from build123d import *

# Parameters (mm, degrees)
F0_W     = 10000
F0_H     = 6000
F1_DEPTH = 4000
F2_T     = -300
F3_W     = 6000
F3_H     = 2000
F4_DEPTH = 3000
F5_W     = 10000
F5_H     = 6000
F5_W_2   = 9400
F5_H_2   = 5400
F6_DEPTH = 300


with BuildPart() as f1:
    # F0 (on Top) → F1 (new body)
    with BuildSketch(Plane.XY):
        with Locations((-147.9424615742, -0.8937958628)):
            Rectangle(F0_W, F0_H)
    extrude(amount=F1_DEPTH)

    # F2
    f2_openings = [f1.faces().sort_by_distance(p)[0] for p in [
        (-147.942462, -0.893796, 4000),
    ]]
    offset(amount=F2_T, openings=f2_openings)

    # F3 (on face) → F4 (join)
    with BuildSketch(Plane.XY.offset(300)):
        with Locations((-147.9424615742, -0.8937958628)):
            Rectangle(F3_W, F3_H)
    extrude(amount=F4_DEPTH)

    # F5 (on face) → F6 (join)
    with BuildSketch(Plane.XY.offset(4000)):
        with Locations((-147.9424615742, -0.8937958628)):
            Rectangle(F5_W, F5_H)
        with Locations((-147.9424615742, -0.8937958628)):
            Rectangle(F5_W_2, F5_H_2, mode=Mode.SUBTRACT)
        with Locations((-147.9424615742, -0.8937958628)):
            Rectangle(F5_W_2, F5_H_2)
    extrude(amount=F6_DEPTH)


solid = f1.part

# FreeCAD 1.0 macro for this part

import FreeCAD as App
import Part
import Sketcher
Q = App.Units.Quantity


def faces_at(feature, points):
    """Names of the faces that lie closest to the given points."""
    faces = feature.Shape.Faces
    near = lambda p: min(range(len(faces)), key=lambda i: faces[i].distToShape(Part.Vertex(*p))[0])
    return sorted({f"Face{near(p) + 1}" for p in points})

doc = App.newDocument("Part")
params = doc.addObject("Spreadsheet::Sheet", "Params")
for row, (alias, value) in enumerate([
    ("sketch1_width", "10000 mm"),
    ("sketch1_height", "6000 mm"),
    ("pad1_length", "4000 mm"),
    ("thickness_wall", "300 mm"),
    ("sketch2_width", "6000 mm"),
    ("sketch2_height", "2000 mm"),
    ("pad2_length", "3000 mm"),
    ("sketch3_width", "10000 mm"),
    ("sketch3_height", "6000 mm"),
    ("pad3_length", "300 mm"),
], start=1):
    params.set(f"A{row}", alias)
    params.set(f"B{row}", "=" + value)
    params.setAlias(f"B{row}", alias)

body = doc.addObject("PartDesign::Body", "Body")

# Sketch on XY plane
sketch1 = body.newObject("Sketcher::SketchObject", "Sketch")
sketch1.AttachmentSupport = (doc.getObject("XY_Plane"), [""])
sketch1.MapMode = "FlatFace"
sketch1.addGeometry([
    Part.LineSegment(App.Vector(-5148, 2999, 0), App.Vector(-5148, -3001, 0)),
    Part.LineSegment(App.Vector(-5148, -3001, 0), App.Vector(4852, -3001, 0)),
    Part.LineSegment(App.Vector(4852, -3001, 0), App.Vector(4852, 2999, 0)),
    Part.LineSegment(App.Vector(4852, 2999, 0), App.Vector(-5148, 2999, 0)),
], False)
sketch1.addConstraint([
    Sketcher.Constraint("Coincident", 0, 2, 1, 1),
    Sketcher.Constraint("Coincident", 1, 2, 2, 1),
    Sketcher.Constraint("Coincident", 2, 2, 3, 1),
    Sketcher.Constraint("Coincident", 3, 2, 0, 1),
    Sketcher.Constraint("Vertical", 0),
    Sketcher.Constraint("Horizontal", 1),
    Sketcher.Constraint("Vertical", 2),
    Sketcher.Constraint("Horizontal", 3),
    Sketcher.Constraint("DistanceX", 1, 1, 1, 2, Q("10000 mm")),
    Sketcher.Constraint("DistanceY", 0, 2, 0, 1, Q("6000 mm")),
    Sketcher.Constraint("DistanceX", 0, 2, -1, 1, Q("5147.942462 mm")),
    Sketcher.Constraint("DistanceY", 0, 2, -1, 1, Q("3000.893796 mm")),
])
sketch1.setExpression("Constraints[8]", "Params.sketch1_width")
sketch1.setExpression("Constraints[9]", "Params.sketch1_height")
pad1 = body.newObject("PartDesign::Pad", "Pad")
pad1.Profile = sketch1
pad1.setExpression("Length", "Params.pad1_length")
doc.recompute()

thickness = body.newObject("PartDesign::Thickness", "Thickness")
thickness.Base = (pad1, faces_at(pad1, [(-147.942, -0.894, 4000)]))
thickness.setExpression("Value", "Params.thickness_wall")
thickness.Reversed = True
thickness.Join = "Arc"

# Sketch on XY plane
sketch2 = body.newObject("Sketcher::SketchObject", "Sketch001")
sketch2.AttachmentSupport = (doc.getObject("XY_Plane"), [""])
sketch2.MapMode = "FlatFace"
sketch2.AttachmentOffset = App.Placement(App.Vector(0, 0, 300), App.Rotation())
sketch2.addGeometry([
    Part.LineSegment(App.Vector(-3148, 999, 0), App.Vector(-3148, -1001, 0)),
    Part.LineSegment(App.Vector(-3148, -1001, 0), App.Vector(2852, -1001, 0)),
    Part.LineSegment(App.Vector(2852, -1001, 0), App.Vector(2852, 999, 0)),
    Part.LineSegment(App.Vector(2852, 999, 0), App.Vector(-3148, 999, 0)),
], False)
sketch2.addConstraint([
    Sketcher.Constraint("Coincident", 0, 2, 1, 1),
    Sketcher.Constraint("Coincident", 1, 2, 2, 1),
    Sketcher.Constraint("Coincident", 2, 2, 3, 1),
    Sketcher.Constraint("Coincident", 3, 2, 0, 1),
    Sketcher.Constraint("Vertical", 0),
    Sketcher.Constraint("Horizontal", 1),
    Sketcher.Constraint("Vertical", 2),
    Sketcher.Constraint("Horizontal", 3),
    Sketcher.Constraint("DistanceX", 1, 1, 1, 2, Q("6000 mm")),
    Sketcher.Constraint("DistanceY", 0, 2, 0, 1, Q("2000 mm")),
    Sketcher.Constraint("DistanceX", 0, 2, -1, 1, Q("3147.942462 mm")),
    Sketcher.Constraint("DistanceY", 0, 2, -1, 1, Q("1000.893796 mm")),
])
sketch2.setExpression("Constraints[8]", "Params.sketch2_width")
sketch2.setExpression("Constraints[9]", "Params.sketch2_height")
pad2 = body.newObject("PartDesign::Pad", "Pad001")
pad2.Profile = sketch2
pad2.setExpression("Length", "Params.pad2_length")

# Sketch on XY plane
sketch3 = body.newObject("Sketcher::SketchObject", "Sketch002")
sketch3.AttachmentSupport = (doc.getObject("XY_Plane"), [""])
sketch3.MapMode = "FlatFace"
sketch3.AttachmentOffset = App.Placement(App.Vector(0, 0, 4000), App.Rotation())
sketch3.addGeometry([
    Part.LineSegment(App.Vector(-5148, 2999, 0), App.Vector(-5148, -3001, 0)),
    Part.LineSegment(App.Vector(-5148, -3001, 0), App.Vector(4852, -3001, 0)),
    Part.LineSegment(App.Vector(4852, -3001, 0), App.Vector(4852, 2999, 0)),
    Part.LineSegment(App.Vector(4852, 2999, 0), App.Vector(-5148, 2999, 0)),
], False)
sketch3.addConstraint([
    Sketcher.Constraint("Coincident", 0, 2, 1, 1),
    Sketcher.Constraint("Coincident", 1, 2, 2, 1),
    Sketcher.Constraint("Coincident", 2, 2, 3, 1),
    Sketcher.Constraint("Coincident", 3, 2, 0, 1),
    Sketcher.Constraint("Vertical", 0),
    Sketcher.Constraint("Horizontal", 1),
    Sketcher.Constraint("Vertical", 2),
    Sketcher.Constraint("Horizontal", 3),
    Sketcher.Constraint("DistanceX", 1, 1, 1, 2, Q("10000 mm")),
    Sketcher.Constraint("DistanceY", 0, 2, 0, 1, Q("6000 mm")),
    Sketcher.Constraint("DistanceX", 0, 2, -1, 1, Q("5147.942462 mm")),
    Sketcher.Constraint("DistanceY", 0, 2, -1, 1, Q("3000.893796 mm")),
])
sketch3.setExpression("Constraints[8]", "Params.sketch3_width")
sketch3.setExpression("Constraints[9]", "Params.sketch3_height")
pad3 = body.newObject("PartDesign::Pad", "Pad002")
pad3.Profile = sketch3
pad3.setExpression("Length", "Params.pad3_length")

doc.recompute()
